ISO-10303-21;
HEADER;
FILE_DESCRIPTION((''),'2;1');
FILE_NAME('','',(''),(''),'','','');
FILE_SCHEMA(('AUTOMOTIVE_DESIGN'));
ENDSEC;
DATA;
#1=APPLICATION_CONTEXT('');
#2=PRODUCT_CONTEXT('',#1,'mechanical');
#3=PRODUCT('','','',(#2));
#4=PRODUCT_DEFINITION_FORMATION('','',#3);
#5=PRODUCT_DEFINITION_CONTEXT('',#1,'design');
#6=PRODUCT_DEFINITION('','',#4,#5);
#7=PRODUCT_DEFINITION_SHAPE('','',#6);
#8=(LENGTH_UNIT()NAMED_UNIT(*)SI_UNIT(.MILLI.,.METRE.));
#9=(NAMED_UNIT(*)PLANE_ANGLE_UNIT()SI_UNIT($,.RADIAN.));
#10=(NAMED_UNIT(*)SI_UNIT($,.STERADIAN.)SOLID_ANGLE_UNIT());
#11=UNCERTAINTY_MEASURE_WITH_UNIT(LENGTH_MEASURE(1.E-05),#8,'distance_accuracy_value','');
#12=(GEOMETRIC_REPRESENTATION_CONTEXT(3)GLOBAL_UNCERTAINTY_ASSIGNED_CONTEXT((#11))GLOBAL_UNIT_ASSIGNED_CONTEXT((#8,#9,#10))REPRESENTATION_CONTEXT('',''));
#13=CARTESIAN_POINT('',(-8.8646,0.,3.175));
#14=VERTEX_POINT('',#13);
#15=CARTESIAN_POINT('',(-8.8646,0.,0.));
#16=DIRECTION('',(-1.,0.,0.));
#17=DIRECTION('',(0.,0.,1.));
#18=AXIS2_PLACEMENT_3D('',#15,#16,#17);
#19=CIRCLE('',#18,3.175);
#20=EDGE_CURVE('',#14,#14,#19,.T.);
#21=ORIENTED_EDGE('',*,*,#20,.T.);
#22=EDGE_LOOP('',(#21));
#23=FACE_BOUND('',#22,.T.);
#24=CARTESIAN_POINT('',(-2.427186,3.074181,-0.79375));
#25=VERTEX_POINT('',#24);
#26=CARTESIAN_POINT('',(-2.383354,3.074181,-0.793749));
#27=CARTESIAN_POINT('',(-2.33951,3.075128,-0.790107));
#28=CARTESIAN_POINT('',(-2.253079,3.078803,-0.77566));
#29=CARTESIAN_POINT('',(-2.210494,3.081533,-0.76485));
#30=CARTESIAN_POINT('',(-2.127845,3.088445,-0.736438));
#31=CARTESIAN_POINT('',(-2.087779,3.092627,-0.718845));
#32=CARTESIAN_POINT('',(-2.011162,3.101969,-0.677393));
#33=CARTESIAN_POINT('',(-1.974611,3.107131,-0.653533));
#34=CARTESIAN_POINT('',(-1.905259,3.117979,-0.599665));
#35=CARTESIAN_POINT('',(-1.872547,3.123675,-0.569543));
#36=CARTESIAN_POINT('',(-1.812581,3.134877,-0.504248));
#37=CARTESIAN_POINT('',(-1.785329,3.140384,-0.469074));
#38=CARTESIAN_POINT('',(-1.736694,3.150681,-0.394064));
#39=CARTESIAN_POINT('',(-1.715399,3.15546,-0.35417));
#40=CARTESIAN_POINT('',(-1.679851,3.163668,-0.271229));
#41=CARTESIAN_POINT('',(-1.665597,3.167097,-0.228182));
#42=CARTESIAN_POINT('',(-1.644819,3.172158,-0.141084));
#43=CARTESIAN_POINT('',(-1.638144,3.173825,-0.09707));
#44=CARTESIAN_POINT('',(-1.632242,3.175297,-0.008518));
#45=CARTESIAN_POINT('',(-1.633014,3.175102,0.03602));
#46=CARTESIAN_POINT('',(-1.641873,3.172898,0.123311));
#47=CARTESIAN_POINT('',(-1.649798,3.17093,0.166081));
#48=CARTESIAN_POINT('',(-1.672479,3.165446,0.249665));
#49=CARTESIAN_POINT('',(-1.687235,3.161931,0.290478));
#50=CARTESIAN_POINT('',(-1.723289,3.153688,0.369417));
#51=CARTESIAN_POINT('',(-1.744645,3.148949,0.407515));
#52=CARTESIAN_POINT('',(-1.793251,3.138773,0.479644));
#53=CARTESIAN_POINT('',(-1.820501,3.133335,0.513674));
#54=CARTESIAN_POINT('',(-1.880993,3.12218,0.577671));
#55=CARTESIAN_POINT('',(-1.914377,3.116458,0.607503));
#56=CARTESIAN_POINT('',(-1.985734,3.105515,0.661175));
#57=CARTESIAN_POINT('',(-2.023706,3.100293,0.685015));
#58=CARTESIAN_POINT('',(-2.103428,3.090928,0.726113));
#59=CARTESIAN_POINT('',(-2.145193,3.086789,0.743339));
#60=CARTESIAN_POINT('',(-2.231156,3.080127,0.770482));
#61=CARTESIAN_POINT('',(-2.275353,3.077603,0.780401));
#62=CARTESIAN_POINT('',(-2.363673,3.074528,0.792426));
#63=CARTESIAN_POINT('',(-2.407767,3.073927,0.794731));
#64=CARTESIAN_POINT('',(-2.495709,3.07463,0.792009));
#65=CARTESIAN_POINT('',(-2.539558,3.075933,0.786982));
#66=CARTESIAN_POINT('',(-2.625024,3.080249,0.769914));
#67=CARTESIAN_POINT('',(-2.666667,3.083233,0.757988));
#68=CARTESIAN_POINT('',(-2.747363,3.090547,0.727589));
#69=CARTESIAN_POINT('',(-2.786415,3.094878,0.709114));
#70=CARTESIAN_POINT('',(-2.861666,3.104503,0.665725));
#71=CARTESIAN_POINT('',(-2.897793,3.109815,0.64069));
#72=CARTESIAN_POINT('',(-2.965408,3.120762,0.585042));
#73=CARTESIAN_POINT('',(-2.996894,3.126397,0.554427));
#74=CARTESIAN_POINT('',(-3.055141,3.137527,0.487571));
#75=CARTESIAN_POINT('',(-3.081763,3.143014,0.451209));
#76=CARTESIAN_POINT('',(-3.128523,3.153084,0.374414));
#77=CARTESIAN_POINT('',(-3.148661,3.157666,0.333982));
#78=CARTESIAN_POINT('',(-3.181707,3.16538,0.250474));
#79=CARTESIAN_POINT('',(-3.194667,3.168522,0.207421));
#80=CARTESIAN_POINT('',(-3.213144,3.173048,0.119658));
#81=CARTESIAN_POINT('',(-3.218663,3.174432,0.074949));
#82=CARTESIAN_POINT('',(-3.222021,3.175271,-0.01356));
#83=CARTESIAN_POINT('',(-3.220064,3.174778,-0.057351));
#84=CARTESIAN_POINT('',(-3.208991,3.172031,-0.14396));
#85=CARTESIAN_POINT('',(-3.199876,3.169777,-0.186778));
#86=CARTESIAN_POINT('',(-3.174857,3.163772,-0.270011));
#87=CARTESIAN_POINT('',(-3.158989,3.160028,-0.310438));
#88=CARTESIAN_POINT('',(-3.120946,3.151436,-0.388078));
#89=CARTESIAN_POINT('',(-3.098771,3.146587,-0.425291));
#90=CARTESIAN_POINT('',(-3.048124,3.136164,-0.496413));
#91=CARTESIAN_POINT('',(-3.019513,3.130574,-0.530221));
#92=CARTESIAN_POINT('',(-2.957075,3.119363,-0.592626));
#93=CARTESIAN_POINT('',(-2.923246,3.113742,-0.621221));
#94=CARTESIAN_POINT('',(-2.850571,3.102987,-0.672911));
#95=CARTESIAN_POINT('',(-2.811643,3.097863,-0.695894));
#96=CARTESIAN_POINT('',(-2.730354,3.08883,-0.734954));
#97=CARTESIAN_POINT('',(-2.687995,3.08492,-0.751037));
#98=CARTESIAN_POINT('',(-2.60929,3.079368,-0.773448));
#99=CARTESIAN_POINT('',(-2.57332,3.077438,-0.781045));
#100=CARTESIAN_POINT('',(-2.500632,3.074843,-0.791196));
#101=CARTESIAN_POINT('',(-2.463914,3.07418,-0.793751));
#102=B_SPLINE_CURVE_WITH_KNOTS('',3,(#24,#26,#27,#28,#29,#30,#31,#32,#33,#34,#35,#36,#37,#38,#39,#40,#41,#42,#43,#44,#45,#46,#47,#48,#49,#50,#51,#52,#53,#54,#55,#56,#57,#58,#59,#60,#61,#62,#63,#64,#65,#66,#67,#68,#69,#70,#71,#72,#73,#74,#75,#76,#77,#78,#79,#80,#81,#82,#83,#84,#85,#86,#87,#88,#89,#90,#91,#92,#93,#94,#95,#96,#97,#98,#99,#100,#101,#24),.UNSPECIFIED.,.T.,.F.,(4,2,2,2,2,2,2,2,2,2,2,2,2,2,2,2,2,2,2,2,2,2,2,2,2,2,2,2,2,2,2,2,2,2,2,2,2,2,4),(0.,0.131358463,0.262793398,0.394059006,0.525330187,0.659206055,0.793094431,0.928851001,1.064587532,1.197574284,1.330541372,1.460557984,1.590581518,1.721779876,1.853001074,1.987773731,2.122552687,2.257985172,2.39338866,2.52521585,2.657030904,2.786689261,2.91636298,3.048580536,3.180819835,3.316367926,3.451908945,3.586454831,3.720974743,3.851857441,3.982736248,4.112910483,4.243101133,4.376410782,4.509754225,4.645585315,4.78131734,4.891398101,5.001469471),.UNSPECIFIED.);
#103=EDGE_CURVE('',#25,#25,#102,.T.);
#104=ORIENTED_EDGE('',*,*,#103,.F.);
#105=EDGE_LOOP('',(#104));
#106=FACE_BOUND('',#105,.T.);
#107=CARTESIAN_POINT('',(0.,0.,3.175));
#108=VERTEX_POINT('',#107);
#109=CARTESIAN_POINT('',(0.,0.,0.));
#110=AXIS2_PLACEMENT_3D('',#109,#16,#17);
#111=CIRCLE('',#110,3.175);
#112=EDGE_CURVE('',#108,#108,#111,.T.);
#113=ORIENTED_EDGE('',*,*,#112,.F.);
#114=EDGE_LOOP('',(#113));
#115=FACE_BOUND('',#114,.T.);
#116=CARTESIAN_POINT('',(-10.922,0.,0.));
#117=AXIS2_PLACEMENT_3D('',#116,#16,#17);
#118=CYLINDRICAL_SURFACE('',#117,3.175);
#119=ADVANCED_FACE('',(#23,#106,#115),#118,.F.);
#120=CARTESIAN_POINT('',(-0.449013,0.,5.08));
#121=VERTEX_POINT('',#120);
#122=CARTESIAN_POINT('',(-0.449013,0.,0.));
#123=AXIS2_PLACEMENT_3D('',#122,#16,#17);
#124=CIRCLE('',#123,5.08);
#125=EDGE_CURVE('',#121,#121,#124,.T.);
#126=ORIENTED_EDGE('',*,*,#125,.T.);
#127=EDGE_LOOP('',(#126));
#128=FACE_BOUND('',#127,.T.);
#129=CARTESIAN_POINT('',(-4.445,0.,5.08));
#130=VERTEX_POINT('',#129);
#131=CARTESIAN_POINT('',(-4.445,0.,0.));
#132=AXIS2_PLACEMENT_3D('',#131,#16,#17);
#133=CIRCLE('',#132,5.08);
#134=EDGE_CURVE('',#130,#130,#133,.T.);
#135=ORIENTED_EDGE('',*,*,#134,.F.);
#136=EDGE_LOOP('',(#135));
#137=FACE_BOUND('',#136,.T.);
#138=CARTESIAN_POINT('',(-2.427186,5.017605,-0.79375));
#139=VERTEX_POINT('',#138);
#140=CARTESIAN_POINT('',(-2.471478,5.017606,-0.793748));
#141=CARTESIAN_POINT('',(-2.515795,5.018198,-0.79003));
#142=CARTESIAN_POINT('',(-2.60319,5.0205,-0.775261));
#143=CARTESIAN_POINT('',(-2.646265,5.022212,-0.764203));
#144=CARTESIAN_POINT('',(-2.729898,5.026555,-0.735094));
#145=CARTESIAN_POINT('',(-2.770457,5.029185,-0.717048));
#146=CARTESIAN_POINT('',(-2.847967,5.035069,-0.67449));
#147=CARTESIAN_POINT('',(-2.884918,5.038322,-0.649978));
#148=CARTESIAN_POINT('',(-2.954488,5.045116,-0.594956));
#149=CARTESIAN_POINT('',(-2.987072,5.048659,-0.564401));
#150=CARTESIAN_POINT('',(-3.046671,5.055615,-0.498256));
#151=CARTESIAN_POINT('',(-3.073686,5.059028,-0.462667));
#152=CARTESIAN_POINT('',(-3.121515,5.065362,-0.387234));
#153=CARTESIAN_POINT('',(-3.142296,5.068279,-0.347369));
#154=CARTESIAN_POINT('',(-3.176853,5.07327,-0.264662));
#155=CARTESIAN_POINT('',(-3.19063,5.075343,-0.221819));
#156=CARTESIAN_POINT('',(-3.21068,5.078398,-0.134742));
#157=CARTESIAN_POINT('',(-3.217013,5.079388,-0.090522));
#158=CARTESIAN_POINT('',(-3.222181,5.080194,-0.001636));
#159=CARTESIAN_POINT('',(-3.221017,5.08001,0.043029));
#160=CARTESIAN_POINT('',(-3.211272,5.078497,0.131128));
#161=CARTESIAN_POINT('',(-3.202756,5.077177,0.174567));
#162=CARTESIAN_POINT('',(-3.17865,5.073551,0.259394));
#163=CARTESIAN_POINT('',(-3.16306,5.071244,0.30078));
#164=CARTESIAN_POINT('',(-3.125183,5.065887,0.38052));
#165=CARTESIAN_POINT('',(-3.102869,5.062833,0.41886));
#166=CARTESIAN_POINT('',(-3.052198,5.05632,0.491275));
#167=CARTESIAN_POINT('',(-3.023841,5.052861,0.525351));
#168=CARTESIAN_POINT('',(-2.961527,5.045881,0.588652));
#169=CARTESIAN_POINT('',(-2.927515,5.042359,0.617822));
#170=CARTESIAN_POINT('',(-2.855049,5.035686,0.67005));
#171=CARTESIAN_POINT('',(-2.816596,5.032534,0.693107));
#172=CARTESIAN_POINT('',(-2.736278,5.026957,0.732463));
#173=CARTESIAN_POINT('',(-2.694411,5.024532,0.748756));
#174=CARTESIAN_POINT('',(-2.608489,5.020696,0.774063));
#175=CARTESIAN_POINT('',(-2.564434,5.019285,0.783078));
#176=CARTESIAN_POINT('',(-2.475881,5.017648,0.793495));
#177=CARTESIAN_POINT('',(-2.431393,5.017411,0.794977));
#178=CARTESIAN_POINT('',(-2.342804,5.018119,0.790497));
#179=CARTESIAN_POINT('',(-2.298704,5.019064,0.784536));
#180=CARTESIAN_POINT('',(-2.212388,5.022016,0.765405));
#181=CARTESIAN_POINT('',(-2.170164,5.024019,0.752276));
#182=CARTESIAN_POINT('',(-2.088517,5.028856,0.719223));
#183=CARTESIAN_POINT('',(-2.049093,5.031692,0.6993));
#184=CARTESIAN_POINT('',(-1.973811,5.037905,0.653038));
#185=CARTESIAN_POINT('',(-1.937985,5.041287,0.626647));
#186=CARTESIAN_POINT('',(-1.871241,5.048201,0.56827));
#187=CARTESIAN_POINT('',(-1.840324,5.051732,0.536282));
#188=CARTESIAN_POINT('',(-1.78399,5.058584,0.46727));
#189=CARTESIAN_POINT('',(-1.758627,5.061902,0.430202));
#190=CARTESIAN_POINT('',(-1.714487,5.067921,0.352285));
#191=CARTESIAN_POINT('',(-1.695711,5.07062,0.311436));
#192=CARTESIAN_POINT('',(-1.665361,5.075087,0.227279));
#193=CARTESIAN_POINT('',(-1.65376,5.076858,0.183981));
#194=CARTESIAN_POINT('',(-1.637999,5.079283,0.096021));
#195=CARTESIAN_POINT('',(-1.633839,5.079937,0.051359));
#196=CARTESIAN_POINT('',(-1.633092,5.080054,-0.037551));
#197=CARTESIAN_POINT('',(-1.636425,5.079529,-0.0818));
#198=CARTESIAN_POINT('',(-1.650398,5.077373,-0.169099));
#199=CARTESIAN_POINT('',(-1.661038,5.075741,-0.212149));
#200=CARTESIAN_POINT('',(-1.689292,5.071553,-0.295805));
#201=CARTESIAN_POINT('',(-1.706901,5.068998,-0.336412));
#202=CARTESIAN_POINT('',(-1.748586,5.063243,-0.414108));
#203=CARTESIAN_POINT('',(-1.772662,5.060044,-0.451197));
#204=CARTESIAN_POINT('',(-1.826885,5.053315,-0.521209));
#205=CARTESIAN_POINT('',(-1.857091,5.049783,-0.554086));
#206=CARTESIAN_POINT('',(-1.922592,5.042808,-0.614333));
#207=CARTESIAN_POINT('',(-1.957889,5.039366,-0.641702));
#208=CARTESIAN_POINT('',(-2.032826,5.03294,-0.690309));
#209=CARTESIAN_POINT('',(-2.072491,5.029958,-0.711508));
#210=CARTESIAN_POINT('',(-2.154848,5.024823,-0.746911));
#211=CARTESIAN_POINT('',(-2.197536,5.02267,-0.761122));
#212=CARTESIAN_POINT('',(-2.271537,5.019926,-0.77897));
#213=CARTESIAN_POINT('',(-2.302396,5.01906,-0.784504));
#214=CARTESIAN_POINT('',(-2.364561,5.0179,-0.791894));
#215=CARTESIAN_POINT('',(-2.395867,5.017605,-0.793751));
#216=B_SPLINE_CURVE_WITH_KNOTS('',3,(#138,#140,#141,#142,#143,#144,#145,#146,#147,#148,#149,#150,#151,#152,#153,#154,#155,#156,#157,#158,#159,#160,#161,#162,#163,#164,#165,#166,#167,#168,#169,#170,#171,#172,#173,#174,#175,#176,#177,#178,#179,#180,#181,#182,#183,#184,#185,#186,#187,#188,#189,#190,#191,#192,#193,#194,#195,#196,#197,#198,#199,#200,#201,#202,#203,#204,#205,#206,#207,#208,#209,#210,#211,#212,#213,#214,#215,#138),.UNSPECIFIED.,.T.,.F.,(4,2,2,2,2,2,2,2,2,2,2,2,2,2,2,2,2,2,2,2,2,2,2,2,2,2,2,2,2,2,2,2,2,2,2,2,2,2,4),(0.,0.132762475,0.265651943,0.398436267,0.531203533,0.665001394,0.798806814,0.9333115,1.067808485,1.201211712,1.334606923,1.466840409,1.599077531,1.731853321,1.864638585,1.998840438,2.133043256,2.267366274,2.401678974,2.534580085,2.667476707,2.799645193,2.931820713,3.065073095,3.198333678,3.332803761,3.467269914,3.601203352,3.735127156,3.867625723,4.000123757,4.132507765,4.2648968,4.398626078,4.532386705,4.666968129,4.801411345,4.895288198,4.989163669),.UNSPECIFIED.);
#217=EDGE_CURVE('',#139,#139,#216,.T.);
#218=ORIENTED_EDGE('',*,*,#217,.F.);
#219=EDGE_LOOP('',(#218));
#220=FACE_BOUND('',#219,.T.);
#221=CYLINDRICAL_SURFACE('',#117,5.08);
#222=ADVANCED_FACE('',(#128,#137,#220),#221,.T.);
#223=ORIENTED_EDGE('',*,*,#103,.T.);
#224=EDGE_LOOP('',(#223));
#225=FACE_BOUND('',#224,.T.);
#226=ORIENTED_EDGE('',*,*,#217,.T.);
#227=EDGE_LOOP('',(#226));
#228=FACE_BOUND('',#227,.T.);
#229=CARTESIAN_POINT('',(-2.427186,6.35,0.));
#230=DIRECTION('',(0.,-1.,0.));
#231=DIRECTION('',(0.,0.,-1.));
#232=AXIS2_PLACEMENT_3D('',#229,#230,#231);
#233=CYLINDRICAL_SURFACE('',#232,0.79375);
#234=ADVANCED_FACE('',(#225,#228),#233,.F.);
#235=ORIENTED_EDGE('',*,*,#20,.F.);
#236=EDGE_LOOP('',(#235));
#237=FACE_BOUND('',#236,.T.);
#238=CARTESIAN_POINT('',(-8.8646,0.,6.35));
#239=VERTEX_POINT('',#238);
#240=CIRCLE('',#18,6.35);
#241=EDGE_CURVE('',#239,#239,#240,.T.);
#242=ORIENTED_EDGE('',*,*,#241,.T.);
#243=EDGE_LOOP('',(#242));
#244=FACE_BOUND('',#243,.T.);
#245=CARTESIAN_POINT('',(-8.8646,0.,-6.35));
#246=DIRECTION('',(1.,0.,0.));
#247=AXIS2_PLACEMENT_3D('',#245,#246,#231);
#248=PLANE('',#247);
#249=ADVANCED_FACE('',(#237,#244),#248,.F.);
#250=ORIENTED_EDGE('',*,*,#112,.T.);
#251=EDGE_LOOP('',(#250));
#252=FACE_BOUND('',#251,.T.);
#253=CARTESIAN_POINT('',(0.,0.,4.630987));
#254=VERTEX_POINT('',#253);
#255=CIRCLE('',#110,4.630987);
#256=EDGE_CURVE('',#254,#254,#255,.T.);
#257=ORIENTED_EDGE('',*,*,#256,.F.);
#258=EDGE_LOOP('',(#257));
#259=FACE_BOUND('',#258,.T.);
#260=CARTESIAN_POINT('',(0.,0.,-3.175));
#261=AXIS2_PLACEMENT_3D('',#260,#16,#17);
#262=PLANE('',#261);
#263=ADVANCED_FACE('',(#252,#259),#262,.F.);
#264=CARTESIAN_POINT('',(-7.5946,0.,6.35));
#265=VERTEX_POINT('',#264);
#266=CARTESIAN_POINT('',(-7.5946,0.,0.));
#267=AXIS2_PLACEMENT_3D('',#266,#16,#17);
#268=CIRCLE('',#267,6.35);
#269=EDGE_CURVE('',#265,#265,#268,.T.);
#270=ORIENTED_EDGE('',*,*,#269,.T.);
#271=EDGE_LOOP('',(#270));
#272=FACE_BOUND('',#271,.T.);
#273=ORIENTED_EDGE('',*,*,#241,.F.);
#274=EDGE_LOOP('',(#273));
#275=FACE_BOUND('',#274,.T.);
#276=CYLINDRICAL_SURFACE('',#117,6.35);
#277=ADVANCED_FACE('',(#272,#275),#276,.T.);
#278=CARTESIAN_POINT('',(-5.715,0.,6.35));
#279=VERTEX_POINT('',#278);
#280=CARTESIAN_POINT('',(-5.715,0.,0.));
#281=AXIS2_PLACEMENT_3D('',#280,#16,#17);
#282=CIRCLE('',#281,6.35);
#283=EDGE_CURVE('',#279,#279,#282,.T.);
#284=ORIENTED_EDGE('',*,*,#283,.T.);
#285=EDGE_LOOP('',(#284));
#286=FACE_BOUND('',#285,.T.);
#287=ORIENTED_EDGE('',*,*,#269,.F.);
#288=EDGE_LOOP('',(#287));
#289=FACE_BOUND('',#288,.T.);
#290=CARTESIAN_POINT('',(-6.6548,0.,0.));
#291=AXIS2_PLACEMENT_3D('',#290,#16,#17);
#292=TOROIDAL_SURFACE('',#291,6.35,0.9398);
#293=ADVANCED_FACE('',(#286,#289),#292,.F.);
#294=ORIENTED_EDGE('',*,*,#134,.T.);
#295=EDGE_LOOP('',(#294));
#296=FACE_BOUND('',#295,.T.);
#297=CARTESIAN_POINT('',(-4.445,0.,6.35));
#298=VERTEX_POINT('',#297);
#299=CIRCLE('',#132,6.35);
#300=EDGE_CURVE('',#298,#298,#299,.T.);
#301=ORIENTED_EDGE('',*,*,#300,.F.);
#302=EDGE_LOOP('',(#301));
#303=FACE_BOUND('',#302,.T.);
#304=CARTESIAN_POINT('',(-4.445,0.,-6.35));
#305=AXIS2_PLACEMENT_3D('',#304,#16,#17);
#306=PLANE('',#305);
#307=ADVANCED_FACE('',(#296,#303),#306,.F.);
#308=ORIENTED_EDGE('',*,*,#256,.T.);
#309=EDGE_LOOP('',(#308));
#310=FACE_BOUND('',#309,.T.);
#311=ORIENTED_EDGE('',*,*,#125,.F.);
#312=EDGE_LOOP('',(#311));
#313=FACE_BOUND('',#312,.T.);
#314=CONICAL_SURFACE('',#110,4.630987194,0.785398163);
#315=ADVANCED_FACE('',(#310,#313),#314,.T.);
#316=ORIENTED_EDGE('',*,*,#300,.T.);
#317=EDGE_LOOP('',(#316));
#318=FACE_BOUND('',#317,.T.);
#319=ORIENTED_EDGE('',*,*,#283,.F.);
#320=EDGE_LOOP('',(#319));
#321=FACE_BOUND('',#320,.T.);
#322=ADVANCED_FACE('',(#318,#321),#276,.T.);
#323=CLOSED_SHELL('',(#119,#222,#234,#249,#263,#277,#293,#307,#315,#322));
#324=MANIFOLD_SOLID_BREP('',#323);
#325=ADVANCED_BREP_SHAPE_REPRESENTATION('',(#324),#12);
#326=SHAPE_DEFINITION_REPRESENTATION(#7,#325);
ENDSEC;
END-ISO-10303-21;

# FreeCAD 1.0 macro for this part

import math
import FreeCAD as App
import Part
import Sketcher
from FreeCAD import Vector
Q = App.Units.Quantity

doc = App.newDocument("Part")
body = doc.addObject("PartDesign::Body", "Body")

# Sketch on XZ plane
sketch1 = body.newObject("Sketcher::SketchObject", "Sketch")
sketch1.AttachmentSupport = (doc.getObject("XZ_Plane"), [""])
sketch1.MapMode = "FlatFace"
sketch1.addGeometry([
    Part.LineSegment(Vector(-8.9, -3.2, 0), Vector(0, -3.2, 0)),  # 0
    Part.LineSegment(Vector(0, -3.2, 0), Vector(0, -4.6, 0)),  # 1
    Part.LineSegment(Vector(0, -4.6, 0), Vector(-0.4, -5.1, 0)),  # 2
    Part.LineSegment(Vector(-0.4, -5.1, 0), Vector(-4.4, -5.1, 0)),  # 3
    Part.LineSegment(Vector(-4.4, -5.1, 0), Vector(-4.4, -6.3, 0)),  # 4
    Part.LineSegment(Vector(-4.4, -6.3, 0), Vector(-5.7, -6.3, 0)),  # 5
    Part.ArcOfCircle(Part.Circle(Vector(-6.7, -6.3, 0), Vector(0, 0, 1), 0.9), math.radians(0), math.radians(180)),  # 6
    Part.LineSegment(Vector(-7.6, -6.3, 0), Vector(-8.9, -6.3, 0)),  # 7
    Part.LineSegment(Vector(-8.9, -6.3, 0), Vector(-8.9, -3.2, 0)),  # 8
], False)
sketch1.addConstraint([
    Sketcher.Constraint("Coincident", 0, 2, 1, 1),
    Sketcher.Constraint("Coincident", 1, 2, 2, 1),
    Sketcher.Constraint("Coincident", 2, 2, 3, 1),
    Sketcher.Constraint("Coincident", 3, 2, 4, 1),
    Sketcher.Constraint("Coincident", 4, 2, 5, 1),
    Sketcher.Constraint("Coincident", 5, 2, 6, 1),
    Sketcher.Constraint("Coincident", 6, 2, 7, 1),
    Sketcher.Constraint("Coincident", 7, 2, 8, 1),
    Sketcher.Constraint("Coincident", 8, 2, 0, 1),
    Sketcher.Constraint("Horizontal", 0),
    Sketcher.Constraint("Vertical", 1),
    Sketcher.Constraint("Horizontal", 3),
    Sketcher.Constraint("Vertical", 4),
    Sketcher.Constraint("Horizontal", 5),
    Sketcher.Constraint("Horizontal", 7),
    Sketcher.Constraint("Vertical", 8),
    Sketcher.Constraint("PointOnObject", 0, 2, -2),
    Sketcher.Constraint("Horizontal", 6, 3, 4, 2),
    Sketcher.Constraint("Horizontal", 5, 2, 6, 2),
    Sketcher.Constraint("Equal", 5, 7),
    Sketcher.Constraint("Equal", 7, 4),
    Sketcher.Constraint("Angle", 2, Q("-135 deg")),
    Sketcher.Constraint("Radius", 6, Q("0.037 in")),
    Sketcher.Constraint("DistanceX", 5, 2, 5, 1, Q("0.05 in")),
    Sketcher.Constraint("DistanceY", 2, 2, -1, 1, Q("0.2 in")),
    Sketcher.Constraint("DistanceX", 0, 1, 0, 2, Q("0.349 in")),
    Sketcher.Constraint("DistanceY", 8, 1, 8, 2, Q("0.125 in")),
    Sketcher.Constraint("Distance", 2, Q("0.025 in")),
])
revolution = body.newObject("PartDesign::Revolution", "Revolution")
revolution.Profile = sketch1
revolution.ReferenceAxis = (sketch1, ["H_Axis"])
revolution.Angle = 360

# Sketch on XZ plane
sketch2 = body.newObject("Sketcher::SketchObject", "Sketch001")
sketch2.AttachmentSupport = (doc.getObject("XZ_Plane"), [""])
sketch2.MapMode = "FlatFace"
sketch2.addGeometry(Part.Circle(Vector(-2.4, 0, 0), Vector(0, 0, 1), 0.8), False)
sketch2.addConstraint([
    Sketcher.Constraint("PointOnObject", 0, 3, -1),
    Sketcher.Constraint("Diameter", 0, Q("0.0625 in")),
    Sketcher.Constraint("DistanceX", 0, 3, -1, 1, Q("2.427186 mm")),
])
pocket1 = body.newObject("PartDesign::Pocket", "Pocket")
pocket1.Profile = sketch2
pocket1.Type = "ThroughAll"

doc.recompute()
